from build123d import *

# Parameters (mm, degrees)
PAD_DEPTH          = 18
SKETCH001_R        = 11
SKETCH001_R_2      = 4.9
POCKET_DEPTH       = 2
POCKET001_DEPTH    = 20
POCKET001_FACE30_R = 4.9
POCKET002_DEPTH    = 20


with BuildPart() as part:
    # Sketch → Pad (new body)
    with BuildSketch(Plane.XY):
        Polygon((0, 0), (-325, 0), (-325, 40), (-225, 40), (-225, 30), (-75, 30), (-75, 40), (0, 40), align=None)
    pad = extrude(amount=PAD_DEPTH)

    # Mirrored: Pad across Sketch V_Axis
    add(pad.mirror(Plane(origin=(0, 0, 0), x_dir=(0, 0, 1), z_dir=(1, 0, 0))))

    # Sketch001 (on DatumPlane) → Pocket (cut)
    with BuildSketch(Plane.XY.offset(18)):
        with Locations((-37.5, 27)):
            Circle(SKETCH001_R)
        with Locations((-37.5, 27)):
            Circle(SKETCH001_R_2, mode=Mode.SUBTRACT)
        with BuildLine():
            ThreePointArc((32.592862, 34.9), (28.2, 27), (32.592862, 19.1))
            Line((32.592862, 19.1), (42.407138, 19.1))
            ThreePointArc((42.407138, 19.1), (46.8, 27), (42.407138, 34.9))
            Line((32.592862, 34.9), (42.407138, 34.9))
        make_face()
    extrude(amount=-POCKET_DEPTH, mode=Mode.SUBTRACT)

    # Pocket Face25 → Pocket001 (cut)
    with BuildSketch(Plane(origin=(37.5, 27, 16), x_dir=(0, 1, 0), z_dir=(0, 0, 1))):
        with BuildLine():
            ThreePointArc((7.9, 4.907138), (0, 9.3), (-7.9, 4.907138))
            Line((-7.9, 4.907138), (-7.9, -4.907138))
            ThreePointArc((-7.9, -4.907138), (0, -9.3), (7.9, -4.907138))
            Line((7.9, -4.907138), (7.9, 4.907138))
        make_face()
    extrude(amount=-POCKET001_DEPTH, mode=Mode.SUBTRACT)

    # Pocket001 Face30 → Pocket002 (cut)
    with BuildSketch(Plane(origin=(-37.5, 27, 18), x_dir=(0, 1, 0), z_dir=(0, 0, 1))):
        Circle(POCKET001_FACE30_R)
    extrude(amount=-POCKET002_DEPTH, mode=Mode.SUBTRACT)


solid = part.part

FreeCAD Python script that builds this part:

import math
import FreeCAD as App
import Part
import Sketcher
Q = App.Units.Quantity


def add_polygon(sketch, points):
    """Adds a closed chain of lines whose ends are joined by coincident constraints."""
    first, n = sketch.GeometryCount, len(points)
    for a, b in zip(points, points[1:] + points[:1]):
        sketch.addGeometry(Part.LineSegment(App.Vector(*a, 0), App.Vector(*b, 0)), False)
    for i in range(n):
        sketch.addConstraint(Sketcher.Constraint("Coincident", first + i, 2, first + (i + 1) % n, 1))

doc = App.newDocument("Part")
params = doc.addObject("Spreadsheet::Sheet", "Params")
for row, (alias, value) in enumerate([
    ("sketch1_width", "325 mm"),
    ("sketch1_width2", "75 mm"),
    ("sketch1_width3", "150 mm"),
    ("sketch1_height", "40 mm"),
    ("sketch1_height2", "10 mm"),
    ("pad1_length", "18 mm"),
    ("sketch2_diameter", "22 mm"),
    ("sketch2_diameter2", "9.8 mm"),
    ("sketch2_radius", "9.3 mm"),
    ("pocket1_length", "2 mm"),
    ("sketch3_radius", "9.3 mm"),
    ("pocket2_length", "20 mm"),
    ("sketch4_diameter", "9.8 mm"),
    ("pocket3_length", "20 mm"),
], start=1):
    params.set(f"A{row}", alias)
    params.set(f"B{row}", "=" + value)
    params.setAlias(f"B{row}", alias)

body = doc.addObject("PartDesign::Body", "Body")

sketch1 = body.newObject("Sketcher::SketchObject", "Sketch")
sketch1.AttachmentSupport = (doc.getObject("XY_Plane"), [""])
sketch1.MapMode = "FlatFace"
add_polygon(sketch1, [(-325, 0), (0, 0), (0, 40), (-75, 40), (-75, 30), (-225, 30), (-225, 40), (-325, 40)])
sketch1.addConstraint([
    Sketcher.Constraint("Horizontal", 0),
    Sketcher.Constraint("Vertical", 1),
    Sketcher.Constraint("Horizontal", 2),
    Sketcher.Constraint("Vertical", 3),
    Sketcher.Constraint("Horizontal", 4),
    Sketcher.Constraint("Vertical", 5),
    Sketcher.Constraint("Horizontal", 6),
    Sketcher.Constraint("Vertical", 7),
    Sketcher.Constraint("Coincident", 0, 2, -1, 1),
    Sketcher.Constraint("Horizontal", 2, 2, 5, 2),
    Sketcher.Constraint("DistanceX", 0, 1, 0, 2, Q("325 mm")),
    Sketcher.Constraint("DistanceX", 2, 2, 2, 1, Q("75 mm")),
    Sketcher.Constraint("DistanceX", 4, 2, 4, 1, Q("150 mm")),
    Sketcher.Constraint("DistanceY", 1, 1, 1, 2, Q("40 mm")),
    Sketcher.Constraint("DistanceY", 3, 2, 3, 1, Q("10 mm")),
])
sketch1.setExpression("Constraints[18]", "Params.sketch1_width")
sketch1.setExpression("Constraints[19]", "Params.sketch1_width2")
sketch1.setExpression("Constraints[20]", "Params.sketch1_width3")
sketch1.setExpression("Constraints[21]", "Params.sketch1_height")
sketch1.setExpression("Constraints[22]", "Params.sketch1_height2")
pad1 = body.newObject("PartDesign::Pad", "Pad")
pad1.Profile = sketch1
pad1.setExpression("Length", "Params.pad1_length")
doc.recompute()

mirrored = body.newObject("PartDesign::Mirrored", "Mirrored")
mirrored.Originals = [pad1]
mirrored.MirrorPlane = (doc.getObject("YZ_Plane"), [""])
body.Tip = mirrored

sketch2 = body.newObject("Sketcher::SketchObject", "Sketch001")
sketch2.AttachmentSupport = (doc.getObject("XY_Plane"), [""])
sketch2.MapMode = "FlatFace"
sketch2.AttachmentOffset = App.Placement(App.Vector(0, 0, 18), App.Rotation())
sketch2.addGeometry([
    Part.Circle(App.Vector(-37.5, 27, 0), App.Vector(0, 0, 1), 11),
    Part.Circle(App.Vector(-37.5, 27, 0), App.Vector(0, 0, 1), 4.9),
    Part.ArcOfCircle(Part.Circle(App.Vector(37.5, 27, 0), App.Vector(0, 0, 1), 9.3), math.radians(121.846762), math.radians(238.153238)),
    Part.LineSegment(App.Vector(32.592862, 19.1, 0), App.Vector(42.407138, 19.1, 0)),
    Part.ArcOfCircle(Part.Circle(App.Vector(37.5, 27, 0), App.Vector(0, 0, 1), 9.3), math.radians(-58.153238), math.radians(58.153238)),
    Part.LineSegment(App.Vector(42.407138, 34.9, 0), App.Vector(32.592862, 34.9, 0)),
], False)
sketch2.addConstraint([
    Sketcher.Constraint("Coincident", 2, 2, 3, 1),
    Sketcher.Constraint("Coincident", 3, 2, 4, 1),
    Sketcher.Constraint("Coincident", 4, 2, 5, 1),
    Sketcher.Constraint("Coincident", 5, 2, 2, 1),
    Sketcher.Constraint("Horizontal", 3),
    Sketcher.Constraint("Horizontal", 5),
    Sketcher.Constraint("Coincident", 1, 3, 0, 3),
    Sketcher.Constraint("Coincident", 4, 3, 2, 3),
    Sketcher.Constraint("Equal", 2, 4),
    Sketcher.Constraint("Symmetric", 0, 3, 2, 3, -2),
    Sketcher.Constraint("Vertical", 3, 2, 4, 2),
    Sketcher.Constraint("Diameter", 0, Q("22 mm")),
    Sketcher.Constraint("Diameter", 1, Q("9.8 mm")),
    Sketcher.Constraint("Radius", 2, Q("9.3 mm")),
    Sketcher.Constraint("DistanceY", -1, 1, 0, 3, Q("27 mm")),
    Sketcher.Constraint("DistanceX", 0, 3, 2, 3, Q("75 mm")),
    Sketcher.Constraint("DistanceY", -1, 1, 2, 2, Q("19.1 mm")),
])
sketch2.setExpression("Constraints[11]", "Params.sketch2_diameter")
sketch2.setExpression("Constraints[12]", "Params.sketch2_diameter2")
sketch2.setExpression("Constraints[13]", "Params.sketch2_radius")
pocket1 = body.newObject("PartDesign::Pocket", "Pocket")
pocket1.Profile = sketch2
pocket1.setExpression("Length", "Params.pocket1_length")

sketch3 = body.newObject("Sketcher::SketchObject", "Sketch002")
sketch3.AttachmentSupport = (doc.getObject("XY_Plane"), [""])
sketch3.MapMode = "FlatFace"
sketch3.AttachmentOffset = App.Placement(App.Vector(0, 0, 16), App.Rotation())
sketch3.addGeometry([
    Part.ArcOfCircle(Part.Circle(App.Vector(37.5, 27, 0), App.Vector(0, 0, 1), 9.3), math.radians(121.846762), math.radians(238.153238)),
    Part.LineSegment(App.Vector(32.592862, 19.1, 0), App.Vector(42.407138, 19.1, 0)),
    Part.ArcOfCircle(Part.Circle(App.Vector(37.5, 27, 0), App.Vector(0, 0, 1), 9.3), math.radians(-58.153238), math.radians(58.153238)),
    Part.LineSegment(App.Vector(42.407138, 34.9, 0), App.Vector(32.592862, 34.9, 0)),
], False)
sketch3.addConstraint([
    Sketcher.Constraint("Coincident", 0, 2, 1, 1),
    Sketcher.Constraint("Coincident", 1, 2, 2, 1),
    Sketcher.Constraint("Coincident", 2, 2, 3, 1),
    Sketcher.Constraint("Coincident", 3, 2, 0, 1),
    Sketcher.Constraint("Horizontal", 1),
    Sketcher.Constraint("Horizontal", 3),
    Sketcher.Constraint("Coincident", 2, 3, 0, 3),
    Sketcher.Constraint("Equal", 0, 2),
    Sketcher.Constraint("Vertical", 1, 2, 2, 2),
    Sketcher.Constraint("Radius", 0, Q("9.3 mm")),
    Sketcher.Constraint("DistanceY", -1, 1, 0, 3, Q("27 mm")),
    Sketcher.Constraint("DistanceX", -1, 1, 0, 3, Q("37.5 mm")),
    Sketcher.Constraint("DistanceY", -1, 1, 0, 2, Q("19.1 mm")),
])
sketch3.setExpression("Constraints[9]", "Params.sketch3_radius")
pocket2 = body.newObject("PartDesign::Pocket", "Pocket001")
pocket2.Profile = sketch3
pocket2.setExpression("Length", "Params.pocket2_length")

sketch4 = body.newObject("Sketcher::SketchObject", "Sketch003")
sketch4.AttachmentSupport = (doc.getObject("XY_Plane"), [""])
sketch4.MapMode = "FlatFace"
sketch4.AttachmentOffset = App.Placement(App.Vector(0, 0, 18), App.Rotation())
sketch4.addGeometry(Part.Circle(App.Vector(-37.5, 27, 0), App.Vector(0, 0, 1), 4.9), False)
sketch4.addConstraint([
    Sketcher.Constraint("Diameter", 0, Q("9.8 mm")),
    Sketcher.Constraint("DistanceY", -1, 1, 0, 3, Q("27 mm")),
    Sketcher.Constraint("DistanceX", 0, 3, -1, 1, Q("37.5 mm")),
])
sketch4.setExpression("Constraints[0]", "Params.sketch4_diameter")
pocket3 = body.newObject("PartDesign::Pocket", "Pocket002")
pocket3.Profile = sketch4
pocket3.setExpression("Length", "Params.pocket3_length")

doc.recompute()
